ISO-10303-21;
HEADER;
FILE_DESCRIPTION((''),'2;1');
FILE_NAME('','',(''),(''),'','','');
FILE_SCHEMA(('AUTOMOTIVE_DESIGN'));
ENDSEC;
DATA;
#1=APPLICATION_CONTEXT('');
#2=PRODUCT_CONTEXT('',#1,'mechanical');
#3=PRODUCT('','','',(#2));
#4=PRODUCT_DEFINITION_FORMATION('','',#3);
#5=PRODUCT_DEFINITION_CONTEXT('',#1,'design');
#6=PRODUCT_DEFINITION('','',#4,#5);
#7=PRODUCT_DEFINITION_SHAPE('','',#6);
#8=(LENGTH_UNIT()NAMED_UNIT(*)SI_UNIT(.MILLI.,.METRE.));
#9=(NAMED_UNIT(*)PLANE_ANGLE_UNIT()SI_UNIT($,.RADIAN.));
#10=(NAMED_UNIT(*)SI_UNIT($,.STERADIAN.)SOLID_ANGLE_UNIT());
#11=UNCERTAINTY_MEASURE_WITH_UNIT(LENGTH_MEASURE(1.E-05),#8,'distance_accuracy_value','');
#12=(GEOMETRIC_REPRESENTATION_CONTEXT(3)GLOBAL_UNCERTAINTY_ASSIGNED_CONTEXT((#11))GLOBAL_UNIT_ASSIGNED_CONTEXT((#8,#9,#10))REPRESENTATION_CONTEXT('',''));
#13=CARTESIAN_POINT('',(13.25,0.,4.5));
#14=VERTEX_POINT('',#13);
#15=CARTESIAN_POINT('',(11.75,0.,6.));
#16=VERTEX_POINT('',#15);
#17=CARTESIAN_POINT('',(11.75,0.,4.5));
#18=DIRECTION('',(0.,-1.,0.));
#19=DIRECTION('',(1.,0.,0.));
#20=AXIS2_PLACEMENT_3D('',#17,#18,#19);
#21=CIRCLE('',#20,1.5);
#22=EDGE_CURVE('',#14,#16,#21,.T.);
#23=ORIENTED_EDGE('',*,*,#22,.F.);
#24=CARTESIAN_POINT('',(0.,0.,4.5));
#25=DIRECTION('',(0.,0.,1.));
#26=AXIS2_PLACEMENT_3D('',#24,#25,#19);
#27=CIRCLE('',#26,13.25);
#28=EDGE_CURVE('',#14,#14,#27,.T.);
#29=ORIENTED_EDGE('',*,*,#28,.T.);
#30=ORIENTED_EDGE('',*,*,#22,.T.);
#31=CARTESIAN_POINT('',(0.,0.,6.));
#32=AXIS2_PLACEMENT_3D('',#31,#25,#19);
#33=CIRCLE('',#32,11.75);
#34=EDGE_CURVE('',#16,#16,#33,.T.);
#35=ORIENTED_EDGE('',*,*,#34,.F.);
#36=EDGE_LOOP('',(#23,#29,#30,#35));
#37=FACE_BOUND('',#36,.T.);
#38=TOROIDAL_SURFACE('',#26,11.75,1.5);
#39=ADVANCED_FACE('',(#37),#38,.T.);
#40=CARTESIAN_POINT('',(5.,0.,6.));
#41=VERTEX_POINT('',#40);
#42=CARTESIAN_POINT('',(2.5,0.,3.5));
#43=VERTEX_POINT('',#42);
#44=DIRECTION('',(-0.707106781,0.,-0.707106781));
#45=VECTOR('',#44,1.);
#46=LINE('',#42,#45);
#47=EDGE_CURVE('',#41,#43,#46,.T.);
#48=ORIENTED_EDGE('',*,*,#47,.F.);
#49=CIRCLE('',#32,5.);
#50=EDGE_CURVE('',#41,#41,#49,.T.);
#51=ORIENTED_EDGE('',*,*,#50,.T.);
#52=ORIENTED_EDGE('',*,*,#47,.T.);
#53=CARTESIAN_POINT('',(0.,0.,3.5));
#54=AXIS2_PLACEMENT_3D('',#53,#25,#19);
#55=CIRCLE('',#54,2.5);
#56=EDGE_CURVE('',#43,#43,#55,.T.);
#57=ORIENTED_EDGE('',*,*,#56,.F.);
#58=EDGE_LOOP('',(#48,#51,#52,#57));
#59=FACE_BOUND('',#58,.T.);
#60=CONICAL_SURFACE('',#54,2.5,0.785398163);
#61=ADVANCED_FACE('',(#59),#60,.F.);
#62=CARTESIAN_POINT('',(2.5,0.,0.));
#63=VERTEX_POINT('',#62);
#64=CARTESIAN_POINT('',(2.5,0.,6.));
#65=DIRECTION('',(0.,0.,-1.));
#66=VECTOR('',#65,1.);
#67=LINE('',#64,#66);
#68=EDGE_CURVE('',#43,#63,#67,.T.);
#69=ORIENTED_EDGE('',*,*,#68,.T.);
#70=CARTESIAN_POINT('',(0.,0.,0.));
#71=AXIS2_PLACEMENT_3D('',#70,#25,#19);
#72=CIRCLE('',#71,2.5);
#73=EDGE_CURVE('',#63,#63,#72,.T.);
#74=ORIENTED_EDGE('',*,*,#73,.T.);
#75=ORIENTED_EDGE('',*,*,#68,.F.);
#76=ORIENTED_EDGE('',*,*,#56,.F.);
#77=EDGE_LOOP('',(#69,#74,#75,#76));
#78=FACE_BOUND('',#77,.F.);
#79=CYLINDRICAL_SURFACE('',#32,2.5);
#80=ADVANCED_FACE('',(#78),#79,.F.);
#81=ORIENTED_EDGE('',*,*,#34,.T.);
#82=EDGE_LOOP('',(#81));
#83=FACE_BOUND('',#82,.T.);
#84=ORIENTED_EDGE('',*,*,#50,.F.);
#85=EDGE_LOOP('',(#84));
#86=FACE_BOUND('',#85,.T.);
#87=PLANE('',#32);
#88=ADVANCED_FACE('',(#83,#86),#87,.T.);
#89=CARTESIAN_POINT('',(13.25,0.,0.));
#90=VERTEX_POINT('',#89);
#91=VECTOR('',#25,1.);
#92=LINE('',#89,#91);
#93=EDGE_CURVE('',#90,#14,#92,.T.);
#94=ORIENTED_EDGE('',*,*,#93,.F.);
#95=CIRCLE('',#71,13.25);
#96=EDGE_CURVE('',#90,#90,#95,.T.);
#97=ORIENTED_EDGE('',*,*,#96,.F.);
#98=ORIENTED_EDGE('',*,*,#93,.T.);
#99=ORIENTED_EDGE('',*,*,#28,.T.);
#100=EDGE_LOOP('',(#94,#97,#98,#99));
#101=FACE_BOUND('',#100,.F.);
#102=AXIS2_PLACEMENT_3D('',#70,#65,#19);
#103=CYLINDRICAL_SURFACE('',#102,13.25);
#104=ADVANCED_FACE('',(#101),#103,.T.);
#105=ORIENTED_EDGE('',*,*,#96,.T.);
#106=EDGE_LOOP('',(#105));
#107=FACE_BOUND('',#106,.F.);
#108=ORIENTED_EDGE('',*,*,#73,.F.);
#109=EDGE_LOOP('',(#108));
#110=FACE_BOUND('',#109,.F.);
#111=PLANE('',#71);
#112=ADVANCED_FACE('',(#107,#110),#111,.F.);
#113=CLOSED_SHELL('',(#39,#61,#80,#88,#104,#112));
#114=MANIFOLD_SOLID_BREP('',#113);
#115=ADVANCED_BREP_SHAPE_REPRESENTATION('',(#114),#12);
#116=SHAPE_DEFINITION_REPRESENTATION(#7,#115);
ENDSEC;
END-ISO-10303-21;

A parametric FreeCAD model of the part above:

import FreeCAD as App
import Part
import Sketcher
from FreeCAD import Vector


def edges_at(feature, points):
    """Names of the edges that pass closest to the given points."""
    edges = feature.Shape.Edges
    near = lambda p: min(range(len(edges)), key=lambda i: edges[i].distToShape(Part.Vertex(*p))[0])
    return sorted({f"Edge{near(p) + 1}" for p in points})

doc = App.newDocument("Part")
body = doc.addObject("PartDesign::Body", "Body")

sketch1 = body.newObject("Sketcher::SketchObject", "Sketch")
sketch1.AttachmentSupport = (doc.getObject("XY_Plane"), [""])
sketch1.MapMode = "FlatFace"
sketch1.addGeometry(Part.Circle(Vector(0, 0, 0), Vector(0, 0, 1), 13), False)
sketch1.addConstraint([
    Sketcher.Constraint("Coincident", 0, 3, -1, 1),
    Sketcher.Constraint("Diameter", 0, 26.5),
])
pad1 = body.newObject("PartDesign::Pad", "Pad")
pad1.Profile = sketch1
pad1.Length = 6
doc.recompute()

fillet = body.newObject("PartDesign::Fillet", "Fillet")
fillet.Base = (pad1, edges_at(pad1, [(-13.25, 0, 6)]))
fillet.Radius = 1.5

sketch2 = body.newObject("Sketcher::SketchObject", "Sketch001")
sketch2.AttachmentSupport = (doc.getObject("XY_Plane"), [""])
sketch2.MapMode = "FlatFace"
sketch2.AttachmentOffset = App.Placement(Vector(0, 0, 6), App.Rotation())
sketch2.addGeometry(Part.Circle(Vector(0, 0, 0), Vector(0, 0, 1), 2.5), False)
sketch2.addConstraint([
    Sketcher.Constraint("Coincident", 0, 3, -1, 1),
    Sketcher.Constraint("Diameter", 0, 5.0),
])
pocket1 = body.newObject("PartDesign::Pocket", "Pocket")
pocket1.Profile = sketch2
pocket1.Type = "ThroughAll"
doc.recompute()

chamfer = body.newObject("PartDesign::Chamfer", "Chamfer")
chamfer.Base = (pocket1, edges_at(pocket1, [(-2.5, 0, 6)]))
chamfer.Size = 2.5

doc.recompute()
